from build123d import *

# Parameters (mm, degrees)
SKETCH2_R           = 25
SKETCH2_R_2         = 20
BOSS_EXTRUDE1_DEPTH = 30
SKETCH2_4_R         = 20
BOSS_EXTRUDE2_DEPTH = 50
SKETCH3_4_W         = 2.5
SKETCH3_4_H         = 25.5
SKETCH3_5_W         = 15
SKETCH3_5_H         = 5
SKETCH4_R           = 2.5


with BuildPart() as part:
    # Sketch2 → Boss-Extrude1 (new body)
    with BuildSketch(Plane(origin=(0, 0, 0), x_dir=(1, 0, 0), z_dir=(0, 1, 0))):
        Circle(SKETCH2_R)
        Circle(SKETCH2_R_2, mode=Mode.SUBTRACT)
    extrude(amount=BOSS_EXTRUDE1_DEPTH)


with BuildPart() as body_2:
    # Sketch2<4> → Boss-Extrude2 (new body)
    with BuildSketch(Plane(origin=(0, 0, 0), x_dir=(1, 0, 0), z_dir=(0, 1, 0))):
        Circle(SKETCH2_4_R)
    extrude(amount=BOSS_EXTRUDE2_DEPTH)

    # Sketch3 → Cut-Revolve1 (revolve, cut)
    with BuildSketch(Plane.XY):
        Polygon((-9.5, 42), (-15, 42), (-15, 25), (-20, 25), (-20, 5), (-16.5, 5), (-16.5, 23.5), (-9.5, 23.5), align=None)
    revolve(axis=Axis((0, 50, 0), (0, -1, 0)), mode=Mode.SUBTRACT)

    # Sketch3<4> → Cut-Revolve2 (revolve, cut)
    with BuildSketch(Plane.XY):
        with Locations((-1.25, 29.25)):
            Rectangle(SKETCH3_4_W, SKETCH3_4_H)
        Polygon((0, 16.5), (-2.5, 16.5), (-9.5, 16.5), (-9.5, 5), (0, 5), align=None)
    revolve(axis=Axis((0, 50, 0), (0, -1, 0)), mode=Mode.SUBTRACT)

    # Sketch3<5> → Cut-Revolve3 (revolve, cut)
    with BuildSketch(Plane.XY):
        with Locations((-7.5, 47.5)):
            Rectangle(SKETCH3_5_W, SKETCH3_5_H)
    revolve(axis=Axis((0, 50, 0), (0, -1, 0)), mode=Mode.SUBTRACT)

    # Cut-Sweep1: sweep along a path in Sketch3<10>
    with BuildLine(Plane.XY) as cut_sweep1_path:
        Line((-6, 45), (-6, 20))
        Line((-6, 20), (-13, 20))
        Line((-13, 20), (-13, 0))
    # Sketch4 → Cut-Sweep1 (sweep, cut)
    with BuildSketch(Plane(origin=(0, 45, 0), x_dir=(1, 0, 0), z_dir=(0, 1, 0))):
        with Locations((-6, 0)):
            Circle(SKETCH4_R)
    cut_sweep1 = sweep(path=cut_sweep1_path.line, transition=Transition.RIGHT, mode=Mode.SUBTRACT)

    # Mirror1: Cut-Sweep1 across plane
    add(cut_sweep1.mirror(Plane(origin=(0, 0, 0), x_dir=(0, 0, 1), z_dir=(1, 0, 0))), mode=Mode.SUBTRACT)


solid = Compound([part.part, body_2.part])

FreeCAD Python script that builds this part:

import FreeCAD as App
import Part
import Sketcher
Q = App.Units.Quantity


def add_polygon(sketch, points):
    """Adds a closed chain of lines whose ends are joined by coincident constraints."""
    first, n = sketch.GeometryCount, len(points)
    for a, b in zip(points, points[1:] + points[:1]):
        sketch.addGeometry(Part.LineSegment(App.Vector(*a, 0), App.Vector(*b, 0)), False)
    for i in range(n):
        sketch.addConstraint(Sketcher.Constraint("Coincident", first + i, 2, first + (i + 1) % n, 1))

doc = App.newDocument("Part")
body = doc.addObject("PartDesign::Body", "Body")

# Sketch on XZ plane
sketch1 = body.newObject("Sketcher::SketchObject", "Sketch")
sketch1.AttachmentSupport = (doc.getObject("XZ_Plane"), [""])
sketch1.MapMode = "FlatFace"
sketch1.addGeometry([
    Part.Circle(App.Vector(0, 0, 0), App.Vector(0, 0, 1), 25),
    Part.Circle(App.Vector(0, 0, 0), App.Vector(0, 0, 1), 20),
], False)
sketch1.addConstraint([
    Sketcher.Constraint("Coincident", 0, 3, -1, 1),
    Sketcher.Constraint("Coincident", 1, 3, -1, 1),
    Sketcher.Constraint("Diameter", 0, Q("50 mm")),
    Sketcher.Constraint("Diameter", 1, Q("40 mm")),
])
pad1 = body.newObject("PartDesign::Pad", "Pad")
pad1.Profile = sketch1
pad1.Length = 30
pad1.Reversed = True
body2 = doc.addObject("PartDesign::Body", "Body001")

# Sketch on XZ plane
sketch2 = body2.newObject("Sketcher::SketchObject", "Sketch001")
sketch2.AttachmentSupport = (doc.getObject("XZ_Plane001"), [""])
sketch2.MapMode = "FlatFace"
sketch2.addGeometry(Part.Circle(App.Vector(0, 0, 0), App.Vector(0, 0, 1), 20), False)
sketch2.addConstraint([
    Sketcher.Constraint("Coincident", 0, 3, -1, 1),
    Sketcher.Constraint("Diameter", 0, Q("40 mm")),
])
pad2 = body2.newObject("PartDesign::Pad", "Pad001")
pad2.Profile = sketch2
pad2.Length = 50
pad2.Reversed = True

# Sketch on XY plane
sketch3 = body2.newObject("Sketcher::SketchObject", "Sketch002")
sketch3.AttachmentSupport = (doc.getObject("XY_Plane001"), [""])
sketch3.MapMode = "FlatFace"
add_polygon(sketch3, [(-9.5, 42), (-15, 42), (-15, 25), (-20, 25), (-20, 5), (-16.5, 5), (-16.5, 23.5), (-9.5, 23.5)])  # lines 0-7
sketch3.addConstraint([
    Sketcher.Constraint("Horizontal", 0),
    Sketcher.Constraint("Vertical", 1),
    Sketcher.Constraint("Horizontal", 2),
    Sketcher.Constraint("Vertical", 3),
    Sketcher.Constraint("Horizontal", 4),
    Sketcher.Constraint("Vertical", 5),
    Sketcher.Constraint("Horizontal", 6),
    Sketcher.Constraint("Vertical", 7),
    Sketcher.Constraint("Equal", 5, 7),
    Sketcher.Constraint("DistanceX", 2, 2, 2, 1, Q("5 mm")),
    Sketcher.Constraint("DistanceX", 6, 1, 6, 2, Q("7 mm")),
    Sketcher.Constraint("DistanceY", 1, 2, 1, 1, Q("17 mm")),
    Sketcher.Constraint("DistanceY", 3, 2, 3, 1, Q("20 mm")),
    Sketcher.Constraint("DistanceX", 0, 2, 0, 1, Q("5.5 mm")),
    Sketcher.Constraint("DistanceX", 0, 2, -1, 1, Q("15 mm")),
    Sketcher.Constraint("DistanceY", -1, 1, 0, 2, Q("42 mm")),
])
groove = body2.newObject("PartDesign::Groove", "Groove")
groove.Profile = sketch3
groove.ReferenceAxis = (sketch3, ["V_Axis"])
groove.Angle = 360

# Sketch on XY plane
sketch4 = body2.newObject("Sketcher::SketchObject", "Sketch003")
sketch4.AttachmentSupport = (doc.getObject("XY_Plane001"), [""])
sketch4.MapMode = "FlatFace"
add_polygon(sketch4, [(-2.5, 42), (-2.5, 16.5), (-9.5, 16.5), (-9.5, 5), (0, 5), (0, 42)])  # lines 0-5
sketch4.addConstraint([
    Sketcher.Constraint("Vertical", 0),
    Sketcher.Constraint("Horizontal", 1),
    Sketcher.Constraint("Vertical", 2),
    Sketcher.Constraint("Horizontal", 3),
    Sketcher.Constraint("Vertical", 4),
    Sketcher.Constraint("Horizontal", 5),
    Sketcher.Constraint("PointOnObject", 3, 2, -2),
    Sketcher.Constraint("DistanceX", 1, 2, 1, 1, Q("7 mm")),
    Sketcher.Constraint("DistanceY", 4, 1, 4, 2, Q("37 mm")),
    Sketcher.Constraint("DistanceX", 3, 1, 3, 2, Q("9.5 mm")),
    Sketcher.Constraint("DistanceY", 0, 2, 0, 1, Q("25.5 mm")),
    Sketcher.Constraint("DistanceY", -1, 1, 2, 2, Q("5 mm")),
])
groove2 = body2.newObject("PartDesign::Groove", "Groove001")
groove2.Profile = sketch4
groove2.ReferenceAxis = (sketch4, ["V_Axis"])
groove2.Angle = 360

# Sketch on XY plane
sketch5 = body2.newObject("Sketcher::SketchObject", "Sketch004")
sketch5.AttachmentSupport = (doc.getObject("XY_Plane001"), [""])
sketch5.MapMode = "FlatFace"
add_polygon(sketch5, [(-15, 50), (-15, 45), (0, 45), (0, 50)])  # lines 0-3
sketch5.addConstraint([
    Sketcher.Constraint("Vertical", 0),
    Sketcher.Constraint("Horizontal", 1),
    Sketcher.Constraint("Vertical", 2),
    Sketcher.Constraint("Horizontal", 3),
    Sketcher.Constraint("PointOnObject", 1, 2, -2),
    Sketcher.Constraint("DistanceX", 1, 1, 1, 2, Q("15 mm")),
    Sketcher.Constraint("DistanceY", 0, 2, 0, 1, Q("5 mm")),
    Sketcher.Constraint("DistanceY", -1, 1, 0, 2, Q("45 mm")),
])
groove3 = body2.newObject("PartDesign::Groove", "Groove002")
groove3.Profile = sketch5
groove3.ReferenceAxis = (sketch5, ["V_Axis"])
groove3.Angle = 360

# Sketch on XZ plane
sketch6 = body2.newObject("Sketcher::SketchObject", "Sketch005")
sketch6.AttachmentSupport = (doc.getObject("XZ_Plane001"), [""])
sketch6.MapMode = "FlatFace"
sketch6.AttachmentOffset = App.Placement(App.Vector(0, 0, -45), App.Rotation())
sketch6.addGeometry(Part.Circle(App.Vector(-6, 0, 0), App.Vector(0, 0, 1), 2.5), False)
sketch6.addConstraint([
    Sketcher.Constraint("PointOnObject", 0, 3, -1),
    Sketcher.Constraint("Diameter", 0, Q("5 mm")),
    Sketcher.Constraint("DistanceX", 0, 3, -1, 1, Q("6 mm")),
])

# Sketch on XY plane
sketch7 = body2.newObject("Sketcher::SketchObject", "Sketch006")
sketch7.AttachmentSupport = (doc.getObject("XY_Plane001"), [""])
sketch7.MapMode = "FlatFace"
sketch7.addGeometry([
    Part.LineSegment(App.Vector(-6, 45, 0), App.Vector(-6, 20, 0)),
    Part.LineSegment(App.Vector(-6, 20, 0), App.Vector(-13, 20, 0)),
    Part.LineSegment(App.Vector(-13, 20, 0), App.Vector(-13, 0, 0)),
], False)
sketch7.addConstraint([
    Sketcher.Constraint("Coincident", 0, 2, 1, 1),
    Sketcher.Constraint("Coincident", 1, 2, 2, 1),
    Sketcher.Constraint("Vertical", 0),
    Sketcher.Constraint("Horizontal", 1),
    Sketcher.Constraint("Vertical", 2),
    Sketcher.Constraint("PointOnObject", 2, 2, -1),
    Sketcher.Constraint("DistanceX", 1, 2, 1, 1, Q("7 mm")),
    Sketcher.Constraint("DistanceY", 0, 2, 0, 1, Q("25 mm")),
    Sketcher.Constraint("DistanceY", 2, 2, 2, 1, Q("20 mm")),
    Sketcher.Constraint("DistanceX", 0, 1, -1, 1, Q("6 mm")),
])
doc.recompute()

subtractivepipe = body2.newObject("PartDesign::SubtractivePipe", "SubtractivePipe")
subtractivepipe.Profile = sketch6
subtractivepipe.Spine = (sketch7, ["Edge1", "Edge2", "Edge3"])
subtractivepipe.Transition = "Right corner"
doc.recompute()

mirrored = body2.newObject("PartDesign::Mirrored", "Mirrored")
mirrored.Originals = [subtractivepipe]
mirrored.MirrorPlane = (doc.getObject("YZ_Plane001"), [""])
body2.Tip = mirrored

doc.recompute()
